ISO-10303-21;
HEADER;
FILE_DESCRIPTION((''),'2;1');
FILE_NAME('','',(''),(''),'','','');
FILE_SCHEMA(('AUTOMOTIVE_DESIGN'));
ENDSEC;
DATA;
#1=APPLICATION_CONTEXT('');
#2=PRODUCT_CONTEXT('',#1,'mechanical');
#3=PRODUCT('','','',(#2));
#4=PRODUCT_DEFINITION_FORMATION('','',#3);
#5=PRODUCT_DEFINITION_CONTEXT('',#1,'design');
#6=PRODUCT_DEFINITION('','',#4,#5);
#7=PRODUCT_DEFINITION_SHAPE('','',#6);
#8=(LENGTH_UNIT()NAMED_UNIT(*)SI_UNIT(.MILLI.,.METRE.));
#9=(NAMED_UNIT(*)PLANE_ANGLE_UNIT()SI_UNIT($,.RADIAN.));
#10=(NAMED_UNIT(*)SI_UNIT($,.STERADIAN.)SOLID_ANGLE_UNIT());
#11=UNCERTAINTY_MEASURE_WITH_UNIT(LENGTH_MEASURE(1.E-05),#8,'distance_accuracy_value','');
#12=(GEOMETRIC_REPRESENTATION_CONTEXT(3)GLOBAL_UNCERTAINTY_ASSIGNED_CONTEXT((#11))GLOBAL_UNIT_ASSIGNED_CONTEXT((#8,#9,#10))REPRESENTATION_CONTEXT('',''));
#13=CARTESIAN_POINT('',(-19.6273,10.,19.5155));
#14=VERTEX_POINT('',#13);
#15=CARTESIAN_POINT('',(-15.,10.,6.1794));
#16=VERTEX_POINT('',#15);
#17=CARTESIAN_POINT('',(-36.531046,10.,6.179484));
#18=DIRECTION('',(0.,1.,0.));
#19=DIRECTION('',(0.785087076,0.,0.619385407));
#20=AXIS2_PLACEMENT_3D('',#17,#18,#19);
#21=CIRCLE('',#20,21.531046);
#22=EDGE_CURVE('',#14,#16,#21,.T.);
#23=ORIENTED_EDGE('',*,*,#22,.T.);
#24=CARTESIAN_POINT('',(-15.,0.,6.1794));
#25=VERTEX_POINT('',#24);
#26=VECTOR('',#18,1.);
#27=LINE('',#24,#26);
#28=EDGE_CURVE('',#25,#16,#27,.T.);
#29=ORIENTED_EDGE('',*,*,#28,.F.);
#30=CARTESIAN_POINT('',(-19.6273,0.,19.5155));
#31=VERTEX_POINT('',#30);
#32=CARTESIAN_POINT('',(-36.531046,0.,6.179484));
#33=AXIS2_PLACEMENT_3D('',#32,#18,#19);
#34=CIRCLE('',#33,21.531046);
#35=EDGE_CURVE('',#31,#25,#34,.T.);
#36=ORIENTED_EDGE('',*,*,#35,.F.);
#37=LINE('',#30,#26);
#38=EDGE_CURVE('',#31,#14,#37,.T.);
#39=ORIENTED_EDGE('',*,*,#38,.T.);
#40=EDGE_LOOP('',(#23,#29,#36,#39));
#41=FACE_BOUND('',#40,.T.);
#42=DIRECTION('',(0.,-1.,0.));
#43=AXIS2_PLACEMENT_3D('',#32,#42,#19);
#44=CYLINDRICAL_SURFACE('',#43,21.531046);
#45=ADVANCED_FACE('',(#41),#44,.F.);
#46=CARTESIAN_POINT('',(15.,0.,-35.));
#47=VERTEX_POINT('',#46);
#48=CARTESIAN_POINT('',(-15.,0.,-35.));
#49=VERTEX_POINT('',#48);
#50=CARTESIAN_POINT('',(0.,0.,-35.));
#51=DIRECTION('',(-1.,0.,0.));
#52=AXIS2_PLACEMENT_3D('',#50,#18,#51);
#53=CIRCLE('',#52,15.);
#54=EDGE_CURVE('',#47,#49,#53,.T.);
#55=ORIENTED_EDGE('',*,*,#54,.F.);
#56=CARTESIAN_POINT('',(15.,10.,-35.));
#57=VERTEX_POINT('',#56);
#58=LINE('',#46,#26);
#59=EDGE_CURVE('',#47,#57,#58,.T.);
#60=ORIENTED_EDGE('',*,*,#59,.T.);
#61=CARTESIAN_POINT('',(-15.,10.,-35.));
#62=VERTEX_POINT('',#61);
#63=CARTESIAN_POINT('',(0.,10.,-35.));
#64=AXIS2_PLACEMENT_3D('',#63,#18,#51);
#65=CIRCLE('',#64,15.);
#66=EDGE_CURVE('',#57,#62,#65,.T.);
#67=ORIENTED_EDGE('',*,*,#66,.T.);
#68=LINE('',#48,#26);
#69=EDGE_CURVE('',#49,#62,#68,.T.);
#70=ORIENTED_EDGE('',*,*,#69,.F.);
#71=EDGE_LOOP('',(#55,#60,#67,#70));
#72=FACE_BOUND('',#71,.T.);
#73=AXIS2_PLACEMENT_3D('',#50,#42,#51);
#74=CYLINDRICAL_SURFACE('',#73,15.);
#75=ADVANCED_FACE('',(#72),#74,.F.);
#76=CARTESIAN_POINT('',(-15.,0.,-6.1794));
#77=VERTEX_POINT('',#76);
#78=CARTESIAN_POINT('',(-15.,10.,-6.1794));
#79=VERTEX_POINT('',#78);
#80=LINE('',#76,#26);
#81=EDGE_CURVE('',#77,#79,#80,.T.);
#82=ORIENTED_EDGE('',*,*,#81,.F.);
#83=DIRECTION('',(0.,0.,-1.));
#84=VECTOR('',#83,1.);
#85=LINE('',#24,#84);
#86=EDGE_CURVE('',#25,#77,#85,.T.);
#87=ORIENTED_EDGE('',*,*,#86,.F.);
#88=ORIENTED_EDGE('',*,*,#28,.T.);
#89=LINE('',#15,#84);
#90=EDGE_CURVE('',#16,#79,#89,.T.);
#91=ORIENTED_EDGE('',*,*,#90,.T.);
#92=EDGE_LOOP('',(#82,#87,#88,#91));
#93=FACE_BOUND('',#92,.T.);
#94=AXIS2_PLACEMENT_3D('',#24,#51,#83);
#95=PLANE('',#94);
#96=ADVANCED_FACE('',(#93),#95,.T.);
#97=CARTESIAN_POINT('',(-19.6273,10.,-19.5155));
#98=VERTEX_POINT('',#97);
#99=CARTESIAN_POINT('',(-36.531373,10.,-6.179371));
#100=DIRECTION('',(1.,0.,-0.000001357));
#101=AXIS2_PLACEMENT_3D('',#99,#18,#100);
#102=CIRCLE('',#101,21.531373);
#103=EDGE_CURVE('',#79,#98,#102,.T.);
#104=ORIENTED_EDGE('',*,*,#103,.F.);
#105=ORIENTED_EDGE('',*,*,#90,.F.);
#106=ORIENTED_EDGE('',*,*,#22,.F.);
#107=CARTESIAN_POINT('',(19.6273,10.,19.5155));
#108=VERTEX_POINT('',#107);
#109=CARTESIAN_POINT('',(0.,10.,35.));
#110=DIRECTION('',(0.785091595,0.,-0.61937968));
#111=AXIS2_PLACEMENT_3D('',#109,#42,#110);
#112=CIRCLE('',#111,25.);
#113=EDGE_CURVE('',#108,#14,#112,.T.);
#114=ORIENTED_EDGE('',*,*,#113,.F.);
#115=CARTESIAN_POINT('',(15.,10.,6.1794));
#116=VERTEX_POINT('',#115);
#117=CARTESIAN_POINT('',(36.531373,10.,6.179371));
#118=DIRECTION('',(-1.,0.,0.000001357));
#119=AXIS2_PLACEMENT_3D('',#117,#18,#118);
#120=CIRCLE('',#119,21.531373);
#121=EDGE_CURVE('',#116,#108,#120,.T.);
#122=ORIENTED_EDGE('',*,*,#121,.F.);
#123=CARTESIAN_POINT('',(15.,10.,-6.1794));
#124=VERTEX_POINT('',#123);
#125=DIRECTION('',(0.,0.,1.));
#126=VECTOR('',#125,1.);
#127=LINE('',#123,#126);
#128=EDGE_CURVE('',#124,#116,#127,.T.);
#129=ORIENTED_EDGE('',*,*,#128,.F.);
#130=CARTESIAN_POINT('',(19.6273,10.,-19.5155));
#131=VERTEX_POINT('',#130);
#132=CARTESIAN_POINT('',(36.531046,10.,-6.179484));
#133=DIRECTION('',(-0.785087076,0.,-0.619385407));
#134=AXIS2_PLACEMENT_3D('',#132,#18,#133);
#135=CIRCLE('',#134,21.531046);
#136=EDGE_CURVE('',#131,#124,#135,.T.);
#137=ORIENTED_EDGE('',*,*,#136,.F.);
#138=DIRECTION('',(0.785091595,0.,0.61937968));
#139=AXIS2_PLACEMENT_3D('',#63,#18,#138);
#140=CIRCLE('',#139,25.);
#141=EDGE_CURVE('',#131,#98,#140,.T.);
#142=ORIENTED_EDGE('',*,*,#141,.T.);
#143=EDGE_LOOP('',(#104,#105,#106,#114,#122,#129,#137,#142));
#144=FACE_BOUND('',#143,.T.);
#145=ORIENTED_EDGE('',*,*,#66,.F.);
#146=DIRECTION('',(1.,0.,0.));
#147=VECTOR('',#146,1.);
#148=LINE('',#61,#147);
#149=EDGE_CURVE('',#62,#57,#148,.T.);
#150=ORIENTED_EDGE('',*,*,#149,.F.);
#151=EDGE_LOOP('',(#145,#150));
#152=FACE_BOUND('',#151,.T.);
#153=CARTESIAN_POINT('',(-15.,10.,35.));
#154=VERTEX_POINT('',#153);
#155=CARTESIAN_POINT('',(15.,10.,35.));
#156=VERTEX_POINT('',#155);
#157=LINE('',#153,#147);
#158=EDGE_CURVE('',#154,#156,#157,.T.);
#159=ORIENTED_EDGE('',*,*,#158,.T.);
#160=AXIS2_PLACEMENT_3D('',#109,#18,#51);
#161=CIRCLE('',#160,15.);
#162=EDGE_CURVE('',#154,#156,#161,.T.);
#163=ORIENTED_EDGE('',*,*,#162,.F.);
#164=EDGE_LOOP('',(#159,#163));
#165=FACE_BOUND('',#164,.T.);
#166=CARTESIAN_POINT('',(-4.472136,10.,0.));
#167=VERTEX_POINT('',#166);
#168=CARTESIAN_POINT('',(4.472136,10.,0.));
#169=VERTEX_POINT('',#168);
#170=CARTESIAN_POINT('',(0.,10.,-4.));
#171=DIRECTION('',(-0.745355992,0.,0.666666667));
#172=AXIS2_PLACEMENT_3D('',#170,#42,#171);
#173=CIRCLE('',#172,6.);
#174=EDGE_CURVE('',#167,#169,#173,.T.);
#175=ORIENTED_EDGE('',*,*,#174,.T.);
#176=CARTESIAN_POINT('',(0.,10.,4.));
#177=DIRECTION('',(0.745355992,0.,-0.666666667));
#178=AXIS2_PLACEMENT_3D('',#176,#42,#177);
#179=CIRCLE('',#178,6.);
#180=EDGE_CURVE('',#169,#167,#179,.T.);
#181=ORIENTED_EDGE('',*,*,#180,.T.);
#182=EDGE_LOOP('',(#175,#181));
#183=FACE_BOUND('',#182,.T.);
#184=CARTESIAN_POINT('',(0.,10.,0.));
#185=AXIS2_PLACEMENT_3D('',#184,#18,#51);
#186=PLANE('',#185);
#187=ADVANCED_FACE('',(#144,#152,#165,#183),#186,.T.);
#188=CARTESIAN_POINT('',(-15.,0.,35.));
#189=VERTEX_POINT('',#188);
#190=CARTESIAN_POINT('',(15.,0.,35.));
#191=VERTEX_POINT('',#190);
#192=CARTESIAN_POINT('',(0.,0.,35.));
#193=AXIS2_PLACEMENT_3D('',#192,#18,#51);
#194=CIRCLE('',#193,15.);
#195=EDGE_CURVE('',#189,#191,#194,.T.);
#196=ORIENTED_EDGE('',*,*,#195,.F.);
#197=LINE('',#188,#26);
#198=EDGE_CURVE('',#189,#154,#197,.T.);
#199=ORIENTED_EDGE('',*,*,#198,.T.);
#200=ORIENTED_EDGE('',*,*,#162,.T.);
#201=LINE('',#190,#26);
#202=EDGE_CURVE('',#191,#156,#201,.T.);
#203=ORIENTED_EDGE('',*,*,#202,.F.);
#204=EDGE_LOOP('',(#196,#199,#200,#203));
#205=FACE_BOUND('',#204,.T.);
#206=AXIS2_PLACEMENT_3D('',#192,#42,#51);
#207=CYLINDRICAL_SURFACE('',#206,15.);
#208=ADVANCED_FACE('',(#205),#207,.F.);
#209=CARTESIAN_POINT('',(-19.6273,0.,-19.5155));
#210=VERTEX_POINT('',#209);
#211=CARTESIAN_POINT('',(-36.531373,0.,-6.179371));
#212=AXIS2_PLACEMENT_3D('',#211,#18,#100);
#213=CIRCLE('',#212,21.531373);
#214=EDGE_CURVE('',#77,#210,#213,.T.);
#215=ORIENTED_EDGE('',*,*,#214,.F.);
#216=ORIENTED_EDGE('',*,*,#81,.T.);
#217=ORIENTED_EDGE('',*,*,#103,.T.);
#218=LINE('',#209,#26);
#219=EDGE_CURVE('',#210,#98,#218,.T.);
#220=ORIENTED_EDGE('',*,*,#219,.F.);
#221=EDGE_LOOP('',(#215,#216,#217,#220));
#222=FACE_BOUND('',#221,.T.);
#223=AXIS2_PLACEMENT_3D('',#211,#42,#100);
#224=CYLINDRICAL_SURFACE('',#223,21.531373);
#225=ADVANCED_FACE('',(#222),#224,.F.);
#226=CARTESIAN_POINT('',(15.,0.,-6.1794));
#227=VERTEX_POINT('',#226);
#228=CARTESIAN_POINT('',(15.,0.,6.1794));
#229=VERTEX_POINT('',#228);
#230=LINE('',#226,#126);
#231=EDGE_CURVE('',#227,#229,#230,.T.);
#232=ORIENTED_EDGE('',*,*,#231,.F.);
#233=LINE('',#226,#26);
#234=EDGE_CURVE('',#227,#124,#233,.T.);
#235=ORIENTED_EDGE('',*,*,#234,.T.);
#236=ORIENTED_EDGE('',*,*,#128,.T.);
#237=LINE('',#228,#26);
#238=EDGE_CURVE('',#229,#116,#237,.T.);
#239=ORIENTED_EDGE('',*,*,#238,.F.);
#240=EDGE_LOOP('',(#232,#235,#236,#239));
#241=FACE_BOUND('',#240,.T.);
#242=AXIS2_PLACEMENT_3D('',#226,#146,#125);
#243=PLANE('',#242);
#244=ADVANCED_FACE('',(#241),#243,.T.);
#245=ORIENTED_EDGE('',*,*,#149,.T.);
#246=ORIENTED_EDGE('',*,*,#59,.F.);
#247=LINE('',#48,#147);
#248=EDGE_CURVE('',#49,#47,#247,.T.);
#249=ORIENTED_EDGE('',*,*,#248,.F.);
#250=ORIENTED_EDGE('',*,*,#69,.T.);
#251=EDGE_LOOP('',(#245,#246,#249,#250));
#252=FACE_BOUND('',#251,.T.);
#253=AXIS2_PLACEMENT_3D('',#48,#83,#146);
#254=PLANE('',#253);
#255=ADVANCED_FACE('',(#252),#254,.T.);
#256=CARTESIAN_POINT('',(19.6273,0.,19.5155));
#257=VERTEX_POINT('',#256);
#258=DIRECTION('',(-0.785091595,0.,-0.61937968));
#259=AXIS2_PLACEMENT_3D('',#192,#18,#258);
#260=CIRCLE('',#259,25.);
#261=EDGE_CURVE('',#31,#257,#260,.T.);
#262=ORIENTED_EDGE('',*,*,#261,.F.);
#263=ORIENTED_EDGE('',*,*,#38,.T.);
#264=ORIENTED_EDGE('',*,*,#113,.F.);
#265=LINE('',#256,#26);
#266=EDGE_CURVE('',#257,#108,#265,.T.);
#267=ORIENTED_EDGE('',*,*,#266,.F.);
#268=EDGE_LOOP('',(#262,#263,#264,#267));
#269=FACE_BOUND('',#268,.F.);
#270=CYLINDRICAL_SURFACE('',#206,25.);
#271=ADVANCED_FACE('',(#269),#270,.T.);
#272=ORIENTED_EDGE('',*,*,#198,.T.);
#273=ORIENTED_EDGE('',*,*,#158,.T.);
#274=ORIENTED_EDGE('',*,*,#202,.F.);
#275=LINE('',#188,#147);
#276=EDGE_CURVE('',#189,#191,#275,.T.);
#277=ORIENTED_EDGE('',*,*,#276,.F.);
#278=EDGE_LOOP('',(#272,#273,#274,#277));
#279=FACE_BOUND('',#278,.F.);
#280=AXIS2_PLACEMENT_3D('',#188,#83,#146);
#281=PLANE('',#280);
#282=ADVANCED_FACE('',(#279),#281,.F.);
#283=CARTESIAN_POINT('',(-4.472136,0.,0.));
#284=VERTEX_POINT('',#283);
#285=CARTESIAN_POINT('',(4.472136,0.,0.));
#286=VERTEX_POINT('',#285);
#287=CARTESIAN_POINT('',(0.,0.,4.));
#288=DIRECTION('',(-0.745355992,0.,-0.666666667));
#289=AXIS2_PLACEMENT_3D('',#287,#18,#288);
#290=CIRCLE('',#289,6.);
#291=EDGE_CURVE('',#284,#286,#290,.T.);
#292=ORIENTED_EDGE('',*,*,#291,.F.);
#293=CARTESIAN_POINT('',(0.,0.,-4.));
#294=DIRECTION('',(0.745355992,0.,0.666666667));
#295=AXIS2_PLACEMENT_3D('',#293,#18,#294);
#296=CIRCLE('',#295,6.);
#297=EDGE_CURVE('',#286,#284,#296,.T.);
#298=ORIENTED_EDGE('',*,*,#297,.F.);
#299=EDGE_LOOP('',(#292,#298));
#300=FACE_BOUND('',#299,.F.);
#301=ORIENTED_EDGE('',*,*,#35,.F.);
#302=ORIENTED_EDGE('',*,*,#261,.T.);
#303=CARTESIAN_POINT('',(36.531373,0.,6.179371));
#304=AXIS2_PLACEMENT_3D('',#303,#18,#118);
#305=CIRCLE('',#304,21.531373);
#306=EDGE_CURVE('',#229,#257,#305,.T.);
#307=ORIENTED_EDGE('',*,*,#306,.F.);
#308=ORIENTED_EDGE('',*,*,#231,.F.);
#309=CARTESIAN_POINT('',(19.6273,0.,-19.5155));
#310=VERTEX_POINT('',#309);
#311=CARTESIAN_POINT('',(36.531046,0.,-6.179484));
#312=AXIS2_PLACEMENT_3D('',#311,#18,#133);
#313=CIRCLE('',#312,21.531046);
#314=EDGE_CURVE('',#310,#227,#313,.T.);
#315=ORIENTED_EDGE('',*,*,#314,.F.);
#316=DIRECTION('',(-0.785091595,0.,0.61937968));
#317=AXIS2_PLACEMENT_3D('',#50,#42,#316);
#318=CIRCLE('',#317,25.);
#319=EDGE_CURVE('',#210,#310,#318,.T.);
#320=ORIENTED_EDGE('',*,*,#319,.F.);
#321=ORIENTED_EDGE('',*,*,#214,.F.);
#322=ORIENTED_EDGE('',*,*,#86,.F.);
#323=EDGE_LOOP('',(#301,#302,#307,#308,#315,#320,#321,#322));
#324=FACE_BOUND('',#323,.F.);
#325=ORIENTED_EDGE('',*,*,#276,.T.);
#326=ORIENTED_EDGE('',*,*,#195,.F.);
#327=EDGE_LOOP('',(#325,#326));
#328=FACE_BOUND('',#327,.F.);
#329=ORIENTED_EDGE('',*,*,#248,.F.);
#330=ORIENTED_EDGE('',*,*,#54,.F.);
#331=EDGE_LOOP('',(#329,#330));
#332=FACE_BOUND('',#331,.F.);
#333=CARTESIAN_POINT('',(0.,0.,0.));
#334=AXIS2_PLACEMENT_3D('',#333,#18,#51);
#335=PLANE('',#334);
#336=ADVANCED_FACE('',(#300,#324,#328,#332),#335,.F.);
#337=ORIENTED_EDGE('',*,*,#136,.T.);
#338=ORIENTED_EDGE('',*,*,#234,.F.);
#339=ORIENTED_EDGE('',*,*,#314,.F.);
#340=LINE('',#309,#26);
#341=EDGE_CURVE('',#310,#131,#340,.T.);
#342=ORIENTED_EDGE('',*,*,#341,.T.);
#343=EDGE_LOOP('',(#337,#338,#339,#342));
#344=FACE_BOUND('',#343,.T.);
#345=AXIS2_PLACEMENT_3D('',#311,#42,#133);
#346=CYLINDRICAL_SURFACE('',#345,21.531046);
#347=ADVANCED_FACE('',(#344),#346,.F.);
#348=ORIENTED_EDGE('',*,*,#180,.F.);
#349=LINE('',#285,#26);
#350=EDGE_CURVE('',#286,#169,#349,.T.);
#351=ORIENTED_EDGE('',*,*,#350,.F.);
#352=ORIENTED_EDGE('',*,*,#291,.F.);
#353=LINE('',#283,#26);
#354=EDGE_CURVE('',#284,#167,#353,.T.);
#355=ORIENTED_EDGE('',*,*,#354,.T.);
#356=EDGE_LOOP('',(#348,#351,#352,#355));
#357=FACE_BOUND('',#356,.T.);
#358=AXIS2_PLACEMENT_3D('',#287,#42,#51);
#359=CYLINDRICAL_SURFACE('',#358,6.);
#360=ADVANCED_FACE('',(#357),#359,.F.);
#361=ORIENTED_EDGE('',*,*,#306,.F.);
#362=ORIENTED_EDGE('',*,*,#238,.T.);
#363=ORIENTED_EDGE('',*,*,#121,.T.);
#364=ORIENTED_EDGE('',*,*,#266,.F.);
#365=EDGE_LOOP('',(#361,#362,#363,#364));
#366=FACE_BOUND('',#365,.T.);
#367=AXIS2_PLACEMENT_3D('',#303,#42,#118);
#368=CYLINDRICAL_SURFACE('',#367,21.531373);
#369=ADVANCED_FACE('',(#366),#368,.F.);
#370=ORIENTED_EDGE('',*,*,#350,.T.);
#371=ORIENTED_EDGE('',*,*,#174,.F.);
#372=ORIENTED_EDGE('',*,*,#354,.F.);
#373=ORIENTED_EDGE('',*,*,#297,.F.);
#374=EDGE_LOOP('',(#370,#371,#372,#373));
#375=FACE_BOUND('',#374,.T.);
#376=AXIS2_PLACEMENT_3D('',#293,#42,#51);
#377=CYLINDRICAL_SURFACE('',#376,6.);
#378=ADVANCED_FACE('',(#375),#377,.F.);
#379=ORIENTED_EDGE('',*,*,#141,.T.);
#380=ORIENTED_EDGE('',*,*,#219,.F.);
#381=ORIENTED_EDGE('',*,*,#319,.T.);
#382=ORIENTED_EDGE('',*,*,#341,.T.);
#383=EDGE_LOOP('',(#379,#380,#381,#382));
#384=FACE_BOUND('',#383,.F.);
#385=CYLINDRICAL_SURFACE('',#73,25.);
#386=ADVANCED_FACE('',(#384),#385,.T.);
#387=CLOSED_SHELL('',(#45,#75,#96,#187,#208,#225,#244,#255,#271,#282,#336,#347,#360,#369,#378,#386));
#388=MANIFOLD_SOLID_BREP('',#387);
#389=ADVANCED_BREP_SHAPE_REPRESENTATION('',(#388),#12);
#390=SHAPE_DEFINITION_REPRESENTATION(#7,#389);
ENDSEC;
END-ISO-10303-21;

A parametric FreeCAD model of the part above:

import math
import FreeCAD as App
import Part
import Sketcher
from FreeCAD import Vector

doc = App.newDocument("Part")
body = doc.addObject("PartDesign::Body", "Body")

# Sketch on XZ plane
sketch1 = doc.addObject("Sketcher::SketchObject", "Sketch")
body.addObject(sketch1)
sketch1.AttachmentSupport = (doc.XZ_Plane, [""])
sketch1.MapMode = "FlatFace"
sketch1.addGeometry(Part.ArcOfCircle(Part.Circle(Vector(0, 35, 0), Vector(0, 0, 1), 25), math.radians(-38), math.radians(218)), False)
sketch1.addGeometry(Part.ArcOfCircle(Part.Circle(Vector(37, 6, 0), Vector(0, 0, 1), 22), math.radians(142), math.radians(180)), False)
sketch1.addGeometry(Part.LineSegment(Vector(15, 6, 0), Vector(15, -6, 0)), False)
sketch1.addGeometry(Part.ArcOfCircle(Part.Circle(Vector(37, -6, 0), Vector(0, 0, 1), 22), math.radians(180), math.radians(218)), False)
sketch1.addGeometry(Part.ArcOfCircle(Part.Circle(Vector(0, -35, 0), Vector(0, 0, 1), 25), math.radians(142), math.radians(398)), False)
sketch1.addGeometry(Part.ArcOfCircle(Part.Circle(Vector(-37, -6, 0), Vector(0, 0, 1), 22), math.radians(-38), math.radians(0)), False)
sketch1.addGeometry(Part.LineSegment(Vector(-15, -6, 0), Vector(-15, 6, 0)), False)
sketch1.addGeometry(Part.ArcOfCircle(Part.Circle(Vector(-37, 6, 0), Vector(0, 0, 1), 22), math.radians(0), math.radians(38)), False)
sketch1.addGeometry(Part.ArcOfCircle(Part.Circle(Vector(0, 35, 0), Vector(0, 0, 1), 15), math.radians(0), math.radians(180)), False)
sketch1.addGeometry(Part.LineSegment(Vector(-15, 35, 0), Vector(15, 35, 0)), False)
sketch1.addGeometry(Part.ArcOfCircle(Part.Circle(Vector(0, -4, 0), Vector(0, 0, 1), 6), math.radians(138), math.radians(402)), False)
sketch1.addGeometry(Part.ArcOfCircle(Part.Circle(Vector(0, 4, 0), Vector(0, 0, 1), 6), math.radians(-42), math.radians(222)), False)
sketch1.addGeometry(Part.ArcOfCircle(Part.Circle(Vector(0, -35, 0), Vector(0, 0, 1), 15), math.radians(180), math.radians(360)), False)
sketch1.addGeometry(Part.LineSegment(Vector(15, -35, 0), Vector(-15, -35, 0)), False)
sketch1.addConstraint(Sketcher.Constraint("Tangent", 0, 1, 1, 1))
sketch1.addConstraint(Sketcher.Constraint("Tangent", 1, 2, 2, 1))
sketch1.addConstraint(Sketcher.Constraint("Tangent", 2, 2, 3, 1))
sketch1.addConstraint(Sketcher.Constraint("Tangent", 3, 2, 4, 2))
sketch1.addConstraint(Sketcher.Constraint("Tangent", 4, 1, 5, 1))
sketch1.addConstraint(Sketcher.Constraint("Tangent", 5, 2, 6, 1))
sketch1.addConstraint(Sketcher.Constraint("Tangent", 6, 2, 7, 1))
sketch1.addConstraint(Sketcher.Constraint("Tangent", 7, 2, 0, 2))
sketch1.addConstraint(Sketcher.Constraint("Coincident", 8, 1, 9, 2))
sketch1.addConstraint(Sketcher.Constraint("Coincident", 9, 1, 8, 2))
sketch1.addConstraint(Sketcher.Constraint("Coincident", 10, 1, 11, 2))
sketch1.addConstraint(Sketcher.Constraint("Coincident", 11, 1, 10, 2))
sketch1.addConstraint(Sketcher.Constraint("Coincident", 12, 1, 13, 2))
sketch1.addConstraint(Sketcher.Constraint("Coincident", 13, 1, 12, 2))
sketch1.addConstraint(Sketcher.Constraint("Vertical", 2))
sketch1.addConstraint(Sketcher.Constraint("Vertical", 6))
sketch1.addConstraint(Sketcher.Constraint("Horizontal", 9))
sketch1.addConstraint(Sketcher.Constraint("Horizontal", 13))
sketch1.addConstraint(Sketcher.Constraint("Coincident", 8, 3, 0, 3))
sketch1.addConstraint(Sketcher.Constraint("Coincident", 12, 3, 4, 3))
sketch1.addConstraint(Sketcher.Constraint("Equal", 1, 3))
sketch1.addConstraint(Sketcher.Constraint("Equal", 0, 4))
sketch1.addConstraint(Sketcher.Constraint("Equal", 3, 5))
sketch1.addConstraint(Sketcher.Constraint("Equal", 5, 7))
sketch1.addConstraint(Sketcher.Constraint("Equal", 10, 11))
sketch1.addConstraint(Sketcher.Constraint("Equal", 8, 12))
sketch1.addConstraint(Sketcher.Constraint("Symmetric", 0, 3, 4, 3, -1, 1))
sketch1.addConstraint(Sketcher.Constraint("Symmetric", 10, 3, 11, 3, -1, 1))
sketch1.addConstraint(Sketcher.Constraint("Symmetric", 3, 3, 5, 3, -2))
sketch1.addConstraint(Sketcher.Constraint("PointOnObject", 10, 3, -2))
sketch1.addConstraint(Sketcher.Constraint("Horizontal", 0, 3, 8, 1))
sketch1.addConstraint(Sketcher.Constraint("Horizontal", 4, 3, 12, 1))
sketch1.addConstraint(Sketcher.Constraint("Vertical", 2, 2, 8, 1))
sketch1.addConstraint(Sketcher.Constraint("Radius", 8, 15.0))
sketch1.addConstraint(Sketcher.Constraint("Radius", 10, 6.0))
sketch1.addConstraint(Sketcher.Constraint("DistanceY", 10, 3, -1, 1, 4.0))
sketch1.addConstraint(Sketcher.Constraint("Radius", 0, 25.0))
sketch1.addConstraint(Sketcher.Constraint("DistanceY", -1, 1, 0, 3, 35.0))
sketch1.addConstraint(Sketcher.Constraint("Radius", 1, 21.5312))
pad1 = doc.addObject("PartDesign::Pad", "Pad")
body.addObject(pad1)
pad1.Profile = sketch1
pad1.Length = 10
pad1.Reversed = True

doc.recompute()
